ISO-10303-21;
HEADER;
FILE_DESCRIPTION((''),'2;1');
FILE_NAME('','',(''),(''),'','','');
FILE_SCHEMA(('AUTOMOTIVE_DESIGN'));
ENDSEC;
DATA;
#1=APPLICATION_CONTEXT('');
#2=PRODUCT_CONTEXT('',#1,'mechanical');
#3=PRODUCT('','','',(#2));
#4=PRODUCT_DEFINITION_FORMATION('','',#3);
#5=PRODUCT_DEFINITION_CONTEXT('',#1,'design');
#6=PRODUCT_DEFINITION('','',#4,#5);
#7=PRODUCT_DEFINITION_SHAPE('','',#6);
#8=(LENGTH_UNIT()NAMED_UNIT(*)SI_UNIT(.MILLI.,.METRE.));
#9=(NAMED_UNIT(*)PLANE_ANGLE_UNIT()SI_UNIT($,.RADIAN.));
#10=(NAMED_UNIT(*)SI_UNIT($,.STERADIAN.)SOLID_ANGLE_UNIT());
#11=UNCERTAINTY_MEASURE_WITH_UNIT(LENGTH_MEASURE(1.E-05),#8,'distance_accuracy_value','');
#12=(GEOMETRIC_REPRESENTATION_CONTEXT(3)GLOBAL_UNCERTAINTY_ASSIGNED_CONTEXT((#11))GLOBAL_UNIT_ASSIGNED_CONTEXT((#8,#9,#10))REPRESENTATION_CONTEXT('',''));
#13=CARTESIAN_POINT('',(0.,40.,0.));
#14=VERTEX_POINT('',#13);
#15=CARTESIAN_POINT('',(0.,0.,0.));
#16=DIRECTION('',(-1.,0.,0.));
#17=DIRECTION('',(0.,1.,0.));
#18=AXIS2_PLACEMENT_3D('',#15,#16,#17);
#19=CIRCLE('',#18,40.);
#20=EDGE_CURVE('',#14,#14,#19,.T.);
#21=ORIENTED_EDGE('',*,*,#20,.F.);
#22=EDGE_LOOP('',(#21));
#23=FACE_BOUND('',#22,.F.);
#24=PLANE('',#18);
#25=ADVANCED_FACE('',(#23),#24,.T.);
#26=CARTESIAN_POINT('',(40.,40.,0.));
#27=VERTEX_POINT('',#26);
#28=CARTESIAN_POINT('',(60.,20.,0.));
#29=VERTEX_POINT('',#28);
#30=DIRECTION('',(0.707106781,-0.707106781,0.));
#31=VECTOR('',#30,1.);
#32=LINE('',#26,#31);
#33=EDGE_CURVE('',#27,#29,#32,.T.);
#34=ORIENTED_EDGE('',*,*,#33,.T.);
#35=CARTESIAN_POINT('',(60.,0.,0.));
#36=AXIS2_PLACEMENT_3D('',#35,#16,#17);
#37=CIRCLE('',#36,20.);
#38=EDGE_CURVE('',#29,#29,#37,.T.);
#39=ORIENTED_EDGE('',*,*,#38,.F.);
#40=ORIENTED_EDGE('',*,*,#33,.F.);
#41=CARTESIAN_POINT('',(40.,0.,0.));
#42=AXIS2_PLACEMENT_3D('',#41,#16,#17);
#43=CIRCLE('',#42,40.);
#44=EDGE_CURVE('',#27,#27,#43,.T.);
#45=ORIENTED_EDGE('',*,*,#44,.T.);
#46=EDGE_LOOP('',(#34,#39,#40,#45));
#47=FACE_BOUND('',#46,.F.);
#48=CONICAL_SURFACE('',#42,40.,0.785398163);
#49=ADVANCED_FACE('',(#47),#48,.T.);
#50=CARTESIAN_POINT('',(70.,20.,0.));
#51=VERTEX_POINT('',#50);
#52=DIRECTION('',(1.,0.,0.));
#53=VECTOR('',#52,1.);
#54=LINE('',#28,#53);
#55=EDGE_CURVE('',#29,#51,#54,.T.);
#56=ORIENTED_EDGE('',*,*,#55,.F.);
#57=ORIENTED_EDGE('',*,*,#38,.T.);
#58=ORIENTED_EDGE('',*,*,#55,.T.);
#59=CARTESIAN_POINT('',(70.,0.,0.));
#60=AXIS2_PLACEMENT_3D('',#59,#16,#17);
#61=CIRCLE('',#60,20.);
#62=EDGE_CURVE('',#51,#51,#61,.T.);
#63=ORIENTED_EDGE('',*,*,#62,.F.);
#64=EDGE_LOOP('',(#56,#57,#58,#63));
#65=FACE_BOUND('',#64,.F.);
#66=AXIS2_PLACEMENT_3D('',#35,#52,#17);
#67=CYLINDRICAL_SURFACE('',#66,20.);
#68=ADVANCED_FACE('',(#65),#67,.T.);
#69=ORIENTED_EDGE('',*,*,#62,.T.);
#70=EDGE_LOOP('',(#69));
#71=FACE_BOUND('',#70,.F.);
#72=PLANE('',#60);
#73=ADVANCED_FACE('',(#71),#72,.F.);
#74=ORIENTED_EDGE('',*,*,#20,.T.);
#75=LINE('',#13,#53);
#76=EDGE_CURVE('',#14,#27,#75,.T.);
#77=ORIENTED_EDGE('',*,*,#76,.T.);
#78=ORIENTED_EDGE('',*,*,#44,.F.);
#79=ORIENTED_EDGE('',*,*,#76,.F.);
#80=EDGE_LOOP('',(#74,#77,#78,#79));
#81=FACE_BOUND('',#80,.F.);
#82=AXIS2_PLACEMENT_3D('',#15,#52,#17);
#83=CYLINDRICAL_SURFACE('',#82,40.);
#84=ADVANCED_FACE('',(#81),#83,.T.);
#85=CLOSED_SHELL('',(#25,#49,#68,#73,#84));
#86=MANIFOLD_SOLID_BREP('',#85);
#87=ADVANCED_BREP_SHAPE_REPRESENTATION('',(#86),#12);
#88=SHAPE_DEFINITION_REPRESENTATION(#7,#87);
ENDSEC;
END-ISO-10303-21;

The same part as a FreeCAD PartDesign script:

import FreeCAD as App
import Part
import Sketcher

V = App.Vector
Q = App.Units.Quantity

doc = App.newDocument("Part")
body = doc.addObject("PartDesign::Body", "Body")

sketch1 = body.newObject("Sketcher::SketchObject", "Sketch")
sketch1.AttachmentSupport = (doc.getObject("XY_Plane"), [""])
sketch1.MapMode = "FlatFace"
sketch1.addGeometry([
    Part.LineSegment(V(0, 40, 0), V(0, 0, 0)),
    Part.LineSegment(V(0, 0, 0), V(70, 0, 0)),
    Part.LineSegment(V(70, 0, 0), V(70, 20, 0)),
    Part.LineSegment(V(70, 20, 0), V(60, 20, 0)),
    Part.LineSegment(V(60, 20, 0), V(40, 40, 0)),
    Part.LineSegment(V(40, 40, 0), V(0, 40, 0)),
], False)
sketch1.addConstraint([
    Sketcher.Constraint("Coincident", 0, 2, 1, 1),
    Sketcher.Constraint("Coincident", 1, 2, 2, 1),
    Sketcher.Constraint("Coincident", 2, 2, 3, 1),
    Sketcher.Constraint("Coincident", 3, 2, 4, 1),
    Sketcher.Constraint("Coincident", 4, 2, 5, 1),
    Sketcher.Constraint("Coincident", 5, 2, 0, 1),
    Sketcher.Constraint("Vertical", 0),
    Sketcher.Constraint("Horizontal", 1),
    Sketcher.Constraint("Vertical", 2),
    Sketcher.Constraint("Horizontal", 3),
    Sketcher.Constraint("Horizontal", 5),
    Sketcher.Constraint("Coincident", 0, 2, -1, 1),
    Sketcher.Constraint("Equal", 5, 0),
    Sketcher.Constraint("DistanceX", 1, 1, 1, 2, Q("70 mm")),
    Sketcher.Constraint("DistanceX", 3, 2, 3, 1, Q("10 mm")),
    Sketcher.Constraint("DistanceX", 5, 2, 5, 1, Q("40 mm")),
    Sketcher.Constraint("DistanceY", 2, 1, 2, 2, Q("20 mm")),
])
revolution = body.newObject("PartDesign::Revolution", "Revolution")
revolution.Profile = sketch1
revolution.ReferenceAxis = (sketch1, ["H_Axis"])
revolution.Angle = 360

doc.recompute()
